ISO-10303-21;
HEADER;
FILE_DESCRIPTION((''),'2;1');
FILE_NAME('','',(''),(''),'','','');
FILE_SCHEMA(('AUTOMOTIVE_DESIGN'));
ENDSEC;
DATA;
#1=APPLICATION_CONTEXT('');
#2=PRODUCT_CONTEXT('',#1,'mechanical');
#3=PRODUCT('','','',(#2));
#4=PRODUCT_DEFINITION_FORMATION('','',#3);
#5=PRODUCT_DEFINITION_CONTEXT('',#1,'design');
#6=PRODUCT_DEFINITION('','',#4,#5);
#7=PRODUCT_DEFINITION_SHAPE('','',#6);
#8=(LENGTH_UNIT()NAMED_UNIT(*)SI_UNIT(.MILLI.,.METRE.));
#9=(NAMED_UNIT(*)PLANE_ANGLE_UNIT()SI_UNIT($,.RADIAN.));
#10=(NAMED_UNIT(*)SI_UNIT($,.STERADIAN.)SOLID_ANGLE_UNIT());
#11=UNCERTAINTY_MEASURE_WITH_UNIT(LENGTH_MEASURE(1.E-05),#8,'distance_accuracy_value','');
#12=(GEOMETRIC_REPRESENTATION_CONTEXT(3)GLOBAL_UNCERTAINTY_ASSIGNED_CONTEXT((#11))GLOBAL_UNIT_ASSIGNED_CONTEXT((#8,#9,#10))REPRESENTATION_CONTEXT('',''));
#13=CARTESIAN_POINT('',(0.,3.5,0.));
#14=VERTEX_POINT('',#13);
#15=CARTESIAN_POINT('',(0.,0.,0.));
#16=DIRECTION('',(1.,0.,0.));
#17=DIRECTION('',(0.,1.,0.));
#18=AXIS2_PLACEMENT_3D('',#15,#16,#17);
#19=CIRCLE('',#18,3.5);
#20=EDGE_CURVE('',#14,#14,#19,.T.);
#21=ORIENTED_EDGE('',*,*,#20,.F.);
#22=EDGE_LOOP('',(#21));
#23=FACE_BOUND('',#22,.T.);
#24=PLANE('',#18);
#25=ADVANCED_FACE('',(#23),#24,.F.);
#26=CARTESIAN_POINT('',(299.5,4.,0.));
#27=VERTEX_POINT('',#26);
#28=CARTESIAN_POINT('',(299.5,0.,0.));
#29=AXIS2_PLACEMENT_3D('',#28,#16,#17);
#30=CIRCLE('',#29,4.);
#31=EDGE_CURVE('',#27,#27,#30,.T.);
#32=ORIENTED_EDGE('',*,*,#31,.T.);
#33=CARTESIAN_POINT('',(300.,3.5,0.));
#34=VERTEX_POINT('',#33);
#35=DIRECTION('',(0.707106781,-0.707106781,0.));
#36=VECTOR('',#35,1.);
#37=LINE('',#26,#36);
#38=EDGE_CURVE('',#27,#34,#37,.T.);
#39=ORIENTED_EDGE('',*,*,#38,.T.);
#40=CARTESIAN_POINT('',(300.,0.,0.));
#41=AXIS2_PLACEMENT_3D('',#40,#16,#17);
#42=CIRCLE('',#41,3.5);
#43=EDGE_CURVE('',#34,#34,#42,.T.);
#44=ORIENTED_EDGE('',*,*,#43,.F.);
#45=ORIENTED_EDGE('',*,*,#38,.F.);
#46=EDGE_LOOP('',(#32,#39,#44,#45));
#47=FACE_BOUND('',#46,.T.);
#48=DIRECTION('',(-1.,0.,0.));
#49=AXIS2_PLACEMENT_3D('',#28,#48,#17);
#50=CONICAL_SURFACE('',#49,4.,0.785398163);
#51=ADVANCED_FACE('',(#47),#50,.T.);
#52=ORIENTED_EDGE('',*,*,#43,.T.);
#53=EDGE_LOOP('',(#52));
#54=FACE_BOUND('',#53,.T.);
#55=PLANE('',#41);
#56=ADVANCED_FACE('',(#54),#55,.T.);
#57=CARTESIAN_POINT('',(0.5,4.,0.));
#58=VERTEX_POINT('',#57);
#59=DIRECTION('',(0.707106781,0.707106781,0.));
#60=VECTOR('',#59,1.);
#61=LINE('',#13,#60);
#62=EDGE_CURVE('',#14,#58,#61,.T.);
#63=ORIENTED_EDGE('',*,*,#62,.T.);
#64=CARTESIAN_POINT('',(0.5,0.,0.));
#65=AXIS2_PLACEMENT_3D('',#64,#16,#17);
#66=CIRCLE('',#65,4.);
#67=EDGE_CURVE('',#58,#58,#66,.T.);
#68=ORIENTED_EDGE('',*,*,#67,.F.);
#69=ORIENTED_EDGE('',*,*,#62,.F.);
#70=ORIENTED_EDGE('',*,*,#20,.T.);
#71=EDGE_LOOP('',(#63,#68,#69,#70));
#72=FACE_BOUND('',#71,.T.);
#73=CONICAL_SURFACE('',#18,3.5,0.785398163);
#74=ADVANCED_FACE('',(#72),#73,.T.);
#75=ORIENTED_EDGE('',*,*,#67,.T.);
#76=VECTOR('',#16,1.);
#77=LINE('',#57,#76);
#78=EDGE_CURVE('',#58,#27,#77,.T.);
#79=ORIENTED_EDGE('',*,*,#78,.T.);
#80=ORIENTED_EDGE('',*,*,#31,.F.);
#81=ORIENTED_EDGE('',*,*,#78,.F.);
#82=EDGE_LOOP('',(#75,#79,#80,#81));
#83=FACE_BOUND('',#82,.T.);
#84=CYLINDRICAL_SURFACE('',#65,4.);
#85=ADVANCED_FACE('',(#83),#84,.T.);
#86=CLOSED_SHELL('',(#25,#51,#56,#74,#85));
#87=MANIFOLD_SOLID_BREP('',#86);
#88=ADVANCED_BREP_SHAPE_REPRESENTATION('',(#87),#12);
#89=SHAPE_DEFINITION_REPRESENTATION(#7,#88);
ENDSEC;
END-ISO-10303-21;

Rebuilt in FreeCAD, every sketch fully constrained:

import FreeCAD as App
import Part
import Sketcher


def add_polygon(sketch, points):
    """Adds a closed chain of lines whose ends are joined by coincident constraints."""
    first, n = sketch.GeometryCount, len(points)
    for a, b in zip(points, points[1:] + points[:1]):
        sketch.addGeometry(Part.LineSegment(App.Vector(*a, 0), App.Vector(*b, 0)), False)
    for i in range(n):
        sketch.addConstraint(Sketcher.Constraint("Coincident", first + i, 2, first + (i + 1) % n, 1))

doc = App.newDocument("Part")
body = doc.addObject("PartDesign::Body", "Body")

# Sketch on XY plane
sketch1 = doc.addObject("Sketcher::SketchObject", "Sketch")
body.addObject(sketch1)
sketch1.AttachmentSupport = (doc.XY_Plane, [""])
sketch1.MapMode = "FlatFace"
add_polygon(sketch1, [(0, 0), (300, 0), (300, 3.5), (299.5, 4), (0.5, 4), (0, 3.5)])  # lines 0-5
sketch1.addConstraint([
    Sketcher.Constraint("Horizontal", 0),
    Sketcher.Constraint("Vertical", 1),
    Sketcher.Constraint("Horizontal", 3),
    Sketcher.Constraint("Vertical", 5),
    Sketcher.Constraint("Coincident", 5, 2, -1, 1),
    Sketcher.Constraint("Perpendicular", 2, 4),
    Sketcher.Constraint("Horizontal", 1, 2, 4, 2),
    Sketcher.Constraint("Equal", 2, 4),
    Sketcher.Constraint("DistanceX", 0, 1, 0, 2, 300.0),
    Sketcher.Constraint("DistanceX", 3, 2, 3, 1, 299.0),
    Sketcher.Constraint("DistanceY", 1, 1, 1, 2, 3.5),
])
revolution = doc.addObject("PartDesign::Revolution", "Revolution")
body.addObject(revolution)
revolution.Profile = sketch1
revolution.ReferenceAxis = (sketch1, ["H_Axis"])
revolution.Angle = 360

doc.recompute()
